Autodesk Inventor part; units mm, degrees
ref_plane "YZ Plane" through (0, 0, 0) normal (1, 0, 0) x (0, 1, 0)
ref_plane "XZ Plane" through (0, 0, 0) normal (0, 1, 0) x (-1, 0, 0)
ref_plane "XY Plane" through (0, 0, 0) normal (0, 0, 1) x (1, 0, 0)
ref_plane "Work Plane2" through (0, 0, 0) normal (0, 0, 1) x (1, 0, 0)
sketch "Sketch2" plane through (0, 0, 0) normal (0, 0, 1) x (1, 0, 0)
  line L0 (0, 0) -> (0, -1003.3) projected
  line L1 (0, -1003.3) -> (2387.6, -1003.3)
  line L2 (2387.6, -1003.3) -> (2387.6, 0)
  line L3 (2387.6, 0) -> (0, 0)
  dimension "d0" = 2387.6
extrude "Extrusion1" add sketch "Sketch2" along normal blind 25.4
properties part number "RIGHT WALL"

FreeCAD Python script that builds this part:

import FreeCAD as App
import Part
import Sketcher
Q = App.Units.Quantity


def add_polygon(sketch, points):
    """Adds a closed chain of lines whose ends are joined by coincident constraints."""
    first, n = sketch.GeometryCount, len(points)
    for a, b in zip(points, points[1:] + points[:1]):
        sketch.addGeometry(Part.LineSegment(App.Vector(*a, 0), App.Vector(*b, 0)), False)
    for i in range(n):
        sketch.addConstraint(Sketcher.Constraint("Coincident", first + i, 2, first + (i + 1) % n, 1))

doc = App.newDocument("Part")
body = doc.addObject("PartDesign::Body", "Body")

# Sketch on XY plane
sketch1 = doc.addObject("Sketcher::SketchObject", "Sketch")
body.addObject(sketch1)
sketch1.AttachmentSupport = (doc.XY_Plane, [""])
sketch1.MapMode = "FlatFace"
add_polygon(sketch1, [(2388, 0), (0, 0), (0, -1003), (2388, -1003)])  # lines 0-3
sketch1.addConstraint(Sketcher.Constraint("Horizontal", 0))
sketch1.addConstraint(Sketcher.Constraint("Vertical", 1))
sketch1.addConstraint(Sketcher.Constraint("Horizontal", 2))
sketch1.addConstraint(Sketcher.Constraint("Vertical", 3))
sketch1.addConstraint(Sketcher.Constraint("Coincident", 0, 2, -1, 1))
sketch1.addConstraint(Sketcher.Constraint("DistanceX", 0, 2, 0, 1, Q("94 in")))
sketch1.addConstraint(Sketcher.Constraint("DistanceY", 1, 2, 1, 1, Q("39.5 in")))
pad1 = doc.addObject("PartDesign::Pad", "Pad")
body.addObject(pad1)
pad1.Profile = sketch1
pad1.Length = Q("1 in")

doc.recompute()
